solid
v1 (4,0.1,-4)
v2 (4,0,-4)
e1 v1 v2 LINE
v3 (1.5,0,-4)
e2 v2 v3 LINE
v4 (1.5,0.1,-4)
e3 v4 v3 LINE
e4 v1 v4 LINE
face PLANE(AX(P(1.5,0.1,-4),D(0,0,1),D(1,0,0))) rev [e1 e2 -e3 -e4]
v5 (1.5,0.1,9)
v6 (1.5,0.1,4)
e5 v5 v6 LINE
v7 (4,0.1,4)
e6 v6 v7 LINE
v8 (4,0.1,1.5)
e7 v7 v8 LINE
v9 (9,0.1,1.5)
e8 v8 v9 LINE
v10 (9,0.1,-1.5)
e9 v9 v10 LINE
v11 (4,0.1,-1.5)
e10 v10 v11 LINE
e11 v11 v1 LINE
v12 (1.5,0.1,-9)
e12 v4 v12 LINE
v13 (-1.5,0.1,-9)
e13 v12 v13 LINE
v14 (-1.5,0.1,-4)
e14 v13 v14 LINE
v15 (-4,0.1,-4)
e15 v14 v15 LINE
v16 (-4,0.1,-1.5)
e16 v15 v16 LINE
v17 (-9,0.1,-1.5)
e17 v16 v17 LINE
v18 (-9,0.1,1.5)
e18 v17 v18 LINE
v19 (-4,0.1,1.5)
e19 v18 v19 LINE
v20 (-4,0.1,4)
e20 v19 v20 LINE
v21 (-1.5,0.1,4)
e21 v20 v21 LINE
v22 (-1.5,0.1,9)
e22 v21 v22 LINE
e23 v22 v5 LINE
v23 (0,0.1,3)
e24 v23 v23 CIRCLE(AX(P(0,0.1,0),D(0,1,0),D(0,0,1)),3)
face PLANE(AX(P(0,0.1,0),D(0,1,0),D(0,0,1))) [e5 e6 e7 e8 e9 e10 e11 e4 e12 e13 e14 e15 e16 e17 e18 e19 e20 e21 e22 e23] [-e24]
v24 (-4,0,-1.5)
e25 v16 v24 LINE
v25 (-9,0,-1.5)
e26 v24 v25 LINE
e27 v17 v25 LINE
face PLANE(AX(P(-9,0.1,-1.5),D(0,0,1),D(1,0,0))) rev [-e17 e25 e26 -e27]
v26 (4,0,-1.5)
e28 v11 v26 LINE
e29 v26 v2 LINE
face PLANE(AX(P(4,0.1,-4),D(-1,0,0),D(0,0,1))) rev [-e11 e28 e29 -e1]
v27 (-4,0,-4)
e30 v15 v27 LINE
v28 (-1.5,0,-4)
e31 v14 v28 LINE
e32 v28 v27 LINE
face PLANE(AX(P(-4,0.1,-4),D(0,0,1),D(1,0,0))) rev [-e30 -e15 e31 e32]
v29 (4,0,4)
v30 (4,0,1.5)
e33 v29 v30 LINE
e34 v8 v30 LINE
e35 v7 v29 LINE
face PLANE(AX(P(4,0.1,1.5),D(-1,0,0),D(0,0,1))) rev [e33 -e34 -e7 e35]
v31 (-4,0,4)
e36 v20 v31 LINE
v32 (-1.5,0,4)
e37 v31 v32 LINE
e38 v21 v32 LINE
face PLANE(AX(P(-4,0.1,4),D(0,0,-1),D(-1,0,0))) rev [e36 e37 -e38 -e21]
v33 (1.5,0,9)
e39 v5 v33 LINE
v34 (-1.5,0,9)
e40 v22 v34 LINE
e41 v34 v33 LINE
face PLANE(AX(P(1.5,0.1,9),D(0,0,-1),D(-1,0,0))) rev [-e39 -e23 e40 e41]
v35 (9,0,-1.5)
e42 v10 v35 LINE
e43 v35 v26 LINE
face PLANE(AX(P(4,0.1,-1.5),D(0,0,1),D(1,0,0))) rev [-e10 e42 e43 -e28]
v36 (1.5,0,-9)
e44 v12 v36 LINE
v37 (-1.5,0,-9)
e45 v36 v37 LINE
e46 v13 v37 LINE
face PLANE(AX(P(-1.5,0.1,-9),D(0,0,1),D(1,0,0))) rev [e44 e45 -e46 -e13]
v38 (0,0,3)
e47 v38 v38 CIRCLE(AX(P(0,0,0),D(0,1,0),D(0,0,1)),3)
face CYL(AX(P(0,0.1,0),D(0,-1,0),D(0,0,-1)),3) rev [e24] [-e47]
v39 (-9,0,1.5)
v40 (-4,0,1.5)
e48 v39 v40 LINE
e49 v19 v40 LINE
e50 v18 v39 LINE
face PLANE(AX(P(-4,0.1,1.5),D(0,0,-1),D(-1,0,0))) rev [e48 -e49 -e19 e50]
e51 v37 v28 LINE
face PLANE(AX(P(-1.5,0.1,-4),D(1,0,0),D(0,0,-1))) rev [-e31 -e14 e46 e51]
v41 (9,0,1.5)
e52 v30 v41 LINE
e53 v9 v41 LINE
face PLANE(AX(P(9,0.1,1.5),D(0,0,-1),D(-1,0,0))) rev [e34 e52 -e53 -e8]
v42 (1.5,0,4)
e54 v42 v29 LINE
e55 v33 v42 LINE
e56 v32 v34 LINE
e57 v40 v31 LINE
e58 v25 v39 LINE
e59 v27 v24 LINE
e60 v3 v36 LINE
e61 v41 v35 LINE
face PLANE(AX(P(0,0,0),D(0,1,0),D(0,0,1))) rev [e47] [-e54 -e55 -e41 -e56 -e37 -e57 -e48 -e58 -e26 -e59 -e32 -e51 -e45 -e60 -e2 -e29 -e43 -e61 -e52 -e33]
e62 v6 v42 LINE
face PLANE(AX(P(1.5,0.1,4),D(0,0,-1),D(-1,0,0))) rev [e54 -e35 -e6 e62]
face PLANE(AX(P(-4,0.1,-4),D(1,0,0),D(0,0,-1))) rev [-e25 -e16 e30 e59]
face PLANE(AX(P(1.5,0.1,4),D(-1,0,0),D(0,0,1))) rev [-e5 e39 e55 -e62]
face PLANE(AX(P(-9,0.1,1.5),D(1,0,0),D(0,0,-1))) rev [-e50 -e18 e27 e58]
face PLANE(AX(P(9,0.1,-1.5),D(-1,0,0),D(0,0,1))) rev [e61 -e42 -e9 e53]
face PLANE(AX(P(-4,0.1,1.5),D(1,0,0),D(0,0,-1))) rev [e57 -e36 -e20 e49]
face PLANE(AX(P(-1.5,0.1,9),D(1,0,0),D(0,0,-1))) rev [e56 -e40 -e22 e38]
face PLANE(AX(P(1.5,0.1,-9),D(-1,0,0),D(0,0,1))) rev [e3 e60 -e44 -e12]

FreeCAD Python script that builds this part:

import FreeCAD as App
import Part
import Sketcher
from FreeCAD import Vector


def add_polygon(sketch, points):
    """Adds a closed chain of lines whose ends are joined by coincident constraints."""
    first, n = sketch.GeometryCount, len(points)
    for a, b in zip(points, points[1:] + points[:1]):
        sketch.addGeometry(Part.LineSegment(App.Vector(*a, 0), App.Vector(*b, 0)), False)
    for i in range(n):
        sketch.addConstraint(Sketcher.Constraint("Coincident", first + i, 2, first + (i + 1) % n, 1))

doc = App.newDocument("Part")
params = doc.addObject("Spreadsheet::Sheet", "Params")
for row, (alias, value) in enumerate([
    ("sketch1_diameter", "6 mm"),
    ("sketch1_width", "5 mm"),
    ("sketch1_width2", "3 mm"),
    ("sketch1_width3", "2.5 mm"),
    ("pad1_length", "0.1 mm"),
], start=1):
    params.set(f"A{row}", alias)
    params.set(f"B{row}", "=" + value)
    params.setAlias(f"B{row}", alias)

body = doc.addObject("PartDesign::Body", "Body")

# Sketch on XZ plane
sketch1 = doc.addObject("Sketcher::SketchObject", "Sketch")
body.addObject(sketch1)
sketch1.AttachmentSupport = (doc.XZ_Plane, [""])
sketch1.MapMode = "FlatFace"
add_polygon(sketch1, [(-1.5, -9), (-1.5, -4), (-4, -4), (-4, -1.5), (-9, -1.5), (-9, 1.5), (-4, 1.5), (-4, 4), (-1.5, 4), (-1.5, 9), (1.5, 9), (1.5, 4), (4, 4), (4, 1.5), (9, 1.5), (9, -1.5), (4, -1.5), (4, -4), (1.5, -4), (1.5, -9)])  # lines 0-19
sketch1.addGeometry(Part.Circle(Vector(0, 0, 0), Vector(0, 0, 1), 3), False)  # 20
sketch1.addConstraint([
    Sketcher.Constraint("Vertical", 0),
    Sketcher.Constraint("Horizontal", 1),
    Sketcher.Constraint("Vertical", 2),
    Sketcher.Constraint("Horizontal", 3),
    Sketcher.Constraint("Vertical", 4),
    Sketcher.Constraint("Horizontal", 5),
    Sketcher.Constraint("Vertical", 6),
    Sketcher.Constraint("Horizontal", 7),
    Sketcher.Constraint("Vertical", 8),
    Sketcher.Constraint("Horizontal", 9),
    Sketcher.Constraint("Vertical", 10),
    Sketcher.Constraint("Horizontal", 11),
    Sketcher.Constraint("Vertical", 12),
    Sketcher.Constraint("Horizontal", 13),
    Sketcher.Constraint("Vertical", 14),
    Sketcher.Constraint("Horizontal", 15),
    Sketcher.Constraint("Vertical", 16),
    Sketcher.Constraint("Horizontal", 17),
    Sketcher.Constraint("Vertical", 18),
    Sketcher.Constraint("Horizontal", 19),
    Sketcher.Constraint("Coincident", 20, 3, -1, 1),
    Sketcher.Constraint("Symmetric", 0, 2, 10, 2, -1, 1),
    Sketcher.Constraint("Symmetric", 2, 2, 12, 2, -1, 1),
    Sketcher.Constraint("Symmetric", 4, 2, 14, 2, -1, 1),
    Sketcher.Constraint("Symmetric", 6, 2, 16, 2, -1, 1),
    Sketcher.Constraint("Symmetric", 8, 2, 18, 2, -1, 1),
    Sketcher.Constraint("Symmetric", 7, 2, 10, 2, -2),
    Sketcher.Constraint("Symmetric", 5, 2, 12, 2, -2),
    Sketcher.Constraint("Equal", 15, 0),
    Sketcher.Constraint("Equal", 17, 2),
    Sketcher.Constraint("Equal", 19, 4),
    Sketcher.Constraint("Diameter", 20, 6.0),
    Sketcher.Constraint("DistanceX", 3, 2, 3, 1, 5.0),
    Sketcher.Constraint("DistanceX", 9, 1, 9, 2, 3.0),
    Sketcher.Constraint("DistanceX", 1, 2, 1, 1, 2.5),
])
sketch1.setExpression("Constraints[51]", "Params.sketch1_diameter")
sketch1.setExpression("Constraints[52]", "Params.sketch1_width")
sketch1.setExpression("Constraints[53]", "Params.sketch1_width2")
sketch1.setExpression("Constraints[54]", "Params.sketch1_width3")
pad1 = doc.addObject("PartDesign::Pad", "Pad")
body.addObject(pad1)
pad1.Profile = sketch1
pad1.setExpression("Length", "Params.pad1_length")
pad1.Reversed = True

doc.recompute()
